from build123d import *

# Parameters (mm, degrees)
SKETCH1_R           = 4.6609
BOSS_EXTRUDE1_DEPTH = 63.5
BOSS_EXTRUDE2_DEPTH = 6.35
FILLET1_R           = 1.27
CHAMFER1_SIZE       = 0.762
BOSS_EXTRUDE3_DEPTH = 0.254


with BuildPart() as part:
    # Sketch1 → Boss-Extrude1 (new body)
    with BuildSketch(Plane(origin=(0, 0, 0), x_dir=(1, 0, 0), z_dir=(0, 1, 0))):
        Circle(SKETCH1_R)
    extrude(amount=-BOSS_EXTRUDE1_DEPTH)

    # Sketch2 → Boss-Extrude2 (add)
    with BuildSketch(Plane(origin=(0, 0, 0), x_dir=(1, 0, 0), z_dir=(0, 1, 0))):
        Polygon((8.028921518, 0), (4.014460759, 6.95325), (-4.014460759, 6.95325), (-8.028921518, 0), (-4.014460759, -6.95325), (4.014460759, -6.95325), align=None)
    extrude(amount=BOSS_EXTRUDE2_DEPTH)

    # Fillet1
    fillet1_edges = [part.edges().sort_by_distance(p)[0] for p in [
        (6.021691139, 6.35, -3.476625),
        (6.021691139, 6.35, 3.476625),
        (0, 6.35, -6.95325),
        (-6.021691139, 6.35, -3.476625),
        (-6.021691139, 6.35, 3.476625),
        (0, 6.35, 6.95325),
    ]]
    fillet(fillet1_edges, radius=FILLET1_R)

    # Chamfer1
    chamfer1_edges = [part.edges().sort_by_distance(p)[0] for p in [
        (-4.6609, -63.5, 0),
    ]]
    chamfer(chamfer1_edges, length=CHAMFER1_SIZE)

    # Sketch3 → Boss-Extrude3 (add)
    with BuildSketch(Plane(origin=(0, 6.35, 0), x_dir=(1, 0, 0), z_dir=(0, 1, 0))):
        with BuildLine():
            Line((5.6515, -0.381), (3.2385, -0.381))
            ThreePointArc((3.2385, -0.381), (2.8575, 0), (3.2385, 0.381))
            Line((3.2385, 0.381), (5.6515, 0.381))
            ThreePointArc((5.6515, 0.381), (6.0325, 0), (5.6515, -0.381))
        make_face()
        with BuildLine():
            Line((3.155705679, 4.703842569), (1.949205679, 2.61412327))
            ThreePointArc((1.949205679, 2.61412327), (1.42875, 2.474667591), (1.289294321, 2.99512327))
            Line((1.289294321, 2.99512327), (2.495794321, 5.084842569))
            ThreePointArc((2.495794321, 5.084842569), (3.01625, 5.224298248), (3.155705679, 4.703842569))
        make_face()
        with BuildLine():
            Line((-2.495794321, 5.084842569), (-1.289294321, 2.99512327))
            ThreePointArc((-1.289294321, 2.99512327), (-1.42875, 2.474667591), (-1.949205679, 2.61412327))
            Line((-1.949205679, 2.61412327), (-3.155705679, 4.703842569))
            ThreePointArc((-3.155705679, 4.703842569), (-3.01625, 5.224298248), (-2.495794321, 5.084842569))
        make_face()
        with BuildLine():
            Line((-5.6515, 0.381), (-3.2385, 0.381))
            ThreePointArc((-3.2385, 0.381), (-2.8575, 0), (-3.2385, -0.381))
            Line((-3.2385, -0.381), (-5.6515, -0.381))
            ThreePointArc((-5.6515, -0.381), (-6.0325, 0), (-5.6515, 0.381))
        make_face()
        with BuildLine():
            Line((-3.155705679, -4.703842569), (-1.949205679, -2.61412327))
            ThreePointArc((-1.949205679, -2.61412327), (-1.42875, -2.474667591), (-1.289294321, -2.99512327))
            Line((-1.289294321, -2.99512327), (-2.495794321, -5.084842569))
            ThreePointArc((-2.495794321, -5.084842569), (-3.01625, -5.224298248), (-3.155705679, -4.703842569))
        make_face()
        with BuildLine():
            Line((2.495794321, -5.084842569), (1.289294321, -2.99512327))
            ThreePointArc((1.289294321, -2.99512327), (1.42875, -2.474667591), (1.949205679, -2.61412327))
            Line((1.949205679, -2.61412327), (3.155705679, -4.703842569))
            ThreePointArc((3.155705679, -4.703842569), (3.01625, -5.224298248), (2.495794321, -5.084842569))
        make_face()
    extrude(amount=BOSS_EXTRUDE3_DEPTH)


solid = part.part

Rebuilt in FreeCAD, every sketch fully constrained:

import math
import FreeCAD as App
import Part
import Sketcher
from FreeCAD import Vector
Q = App.Units.Quantity


def edges_at(feature, points):
    """Names of the edges that pass closest to the given points."""
    edges = feature.Shape.Edges
    near = lambda p: min(range(len(edges)), key=lambda i: edges[i].distToShape(Part.Vertex(*p))[0])
    return sorted({f"Edge{near(p) + 1}" for p in points})


def add_polygon(sketch, points):
    """Adds a closed chain of lines whose ends are joined by coincident constraints."""
    first, n = sketch.GeometryCount, len(points)
    for a, b in zip(points, points[1:] + points[:1]):
        sketch.addGeometry(Part.LineSegment(App.Vector(*a, 0), App.Vector(*b, 0)), False)
    for i in range(n):
        sketch.addConstraint(Sketcher.Constraint("Coincident", first + i, 2, first + (i + 1) % n, 1))

doc = App.newDocument("Part")
body = doc.addObject("PartDesign::Body", "Body")

sketch1 = body.newObject("Sketcher::SketchObject", "Sketch")
sketch1.AttachmentSupport = (doc.getObject("XZ_Plane"), [""])
sketch1.MapMode = "FlatFace"
sketch1.addGeometry(Part.Circle(Vector(0, 0, 0), Vector(0, 0, 1), 4.7), False)
sketch1.addConstraint([
    Sketcher.Constraint("Coincident", 0, 3, -1, 1),
    Sketcher.Constraint("Diameter", 0, Q("0.367 in")),
])
pad1 = body.newObject("PartDesign::Pad", "Pad")
pad1.Profile = sketch1
pad1.Length = Q("2.5 in")

sketch2 = body.newObject("Sketcher::SketchObject", "Sketch001")
sketch2.AttachmentSupport = (doc.getObject("XZ_Plane"), [""])
sketch2.MapMode = "FlatFace"
add_polygon(sketch2, [(8, 0), (4, -7), (-4, -7), (-8, 0), (-4, 7), (4, 7)])
sketch2.addConstraint([
    Sketcher.Constraint("Horizontal", 1),
    Sketcher.Constraint("Horizontal", 4),
    Sketcher.Constraint("Symmetric", 0, 2, 3, 2, -1, 1),
    Sketcher.Constraint("Symmetric", 2, 2, 5, 2, -1, 1),
    Sketcher.Constraint("PointOnObject", 2, 2, -1),
    Sketcher.Constraint("Parallel", 2, 5),
    Sketcher.Constraint("Vertical", 1, 2, 3, 2),
    Sketcher.Constraint("Angle", 0, Q("-120 deg")),
    Sketcher.Constraint("DistanceY", 1, 2, 3, 2, Q("0.5475 in")),
    Sketcher.Constraint("DistanceX", 1, 2, 1, 1, 8.028922),
])
pad2 = body.newObject("PartDesign::Pad", "Pad001")
pad2.Profile = sketch2
pad2.Length = Q("0.25 in")
pad2.Reversed = True
doc.recompute()

fillet = body.newObject("PartDesign::Fillet", "Fillet")
fillet.Base = (pad2, edges_at(pad2, [
    (6.022, 6.35, -3.477),
    (6.022, 6.35, 3.477),
    (0, 6.35, -6.953),
    (-6.022, 6.35, -3.477),
    (-6.022, 6.35, 3.477),
    (0, 6.35, 6.953),
]))
fillet.Radius = Q("0.05 in")
doc.recompute()

chamfer = body.newObject("PartDesign::Chamfer", "Chamfer")
chamfer.Base = (fillet, edges_at(fillet, [(-4.661, -63.5, 0)]))
chamfer.Size = Q("0.03 in")

sketch3 = body.newObject("Sketcher::SketchObject", "Sketch002")
sketch3.AttachmentSupport = (doc.getObject("XZ_Plane"), [""])
sketch3.MapMode = "FlatFace"
sketch3.AttachmentOffset = App.Placement(Vector(0, 0, -0.25 * 25.4), App.Rotation())
sketch3.addGeometry([
    Part.LineSegment(Vector(3.24, 0.38, 0), Vector(5.65, 0.38, 0)),
    Part.ArcOfCircle(Part.Circle(Vector(5.65, 0, 0), Vector(0, 0, 1), 0.38), math.radians(-90), math.radians(90)),
    Part.LineSegment(Vector(5.65, -0.38, 0), Vector(3.24, -0.38, 0)),
    Part.ArcOfCircle(Part.Circle(Vector(3.24, 0, 0), Vector(0, 0, 1), 0.38), math.radians(90), math.radians(270)),
    Part.LineSegment(Vector(1.95, -2.61, 0), Vector(3.16, -4.7, 0)),
    Part.ArcOfCircle(Part.Circle(Vector(2.83, -4.89, 0), Vector(0, 0, 1), 0.38), math.radians(-150), math.radians(30)),
    Part.LineSegment(Vector(2.5, -5.08, 0), Vector(1.29, -3, 0)),
    Part.ArcOfCircle(Part.Circle(Vector(1.62, -2.8, 0), Vector(0, 0, 1), 0.38), math.radians(30), math.radians(210)),
    Part.LineSegment(Vector(-1.29, -3, 0), Vector(-2.5, -5.08, 0)),
    Part.ArcOfCircle(Part.Circle(Vector(-2.83, -4.89, 0), Vector(0, 0, 1), 0.38), math.radians(150), math.radians(330)),
    Part.LineSegment(Vector(-3.16, -4.7, 0), Vector(-1.95, -2.61, 0)),
    Part.ArcOfCircle(Part.Circle(Vector(-1.62, -2.8, 0), Vector(0, 0, 1), 0.38), math.radians(-30), math.radians(150)),
    Part.LineSegment(Vector(-3.24, -0.38, 0), Vector(-5.65, -0.38, 0)),
    Part.ArcOfCircle(Part.Circle(Vector(-5.65, 0, 0), Vector(0, 0, 1), 0.38), math.radians(90), math.radians(270)),
    Part.LineSegment(Vector(-5.65, 0.38, 0), Vector(-3.24, 0.38, 0)),
    Part.ArcOfCircle(Part.Circle(Vector(-3.24, 0, 0), Vector(0, 0, 1), 0.38), math.radians(-90), math.radians(90)),
    Part.LineSegment(Vector(-1.95, 2.61, 0), Vector(-3.16, 4.7, 0)),
    Part.ArcOfCircle(Part.Circle(Vector(-2.83, 4.89, 0), Vector(0, 0, 1), 0.38), math.radians(30), math.radians(210)),
    Part.LineSegment(Vector(-2.5, 5.08, 0), Vector(-1.29, 3, 0)),
    Part.ArcOfCircle(Part.Circle(Vector(-1.62, 2.8, 0), Vector(0, 0, 1), 0.38), math.radians(-150), math.radians(30)),
    Part.LineSegment(Vector(1.29, 3, 0), Vector(2.5, 5.08, 0)),
    Part.ArcOfCircle(Part.Circle(Vector(2.83, 4.89, 0), Vector(0, 0, 1), 0.38), math.radians(-30), math.radians(150)),
    Part.LineSegment(Vector(3.16, 4.7, 0), Vector(1.95, 2.61, 0)),
    Part.ArcOfCircle(Part.Circle(Vector(1.62, 2.8, 0), Vector(0, 0, 1), 0.38), math.radians(150), math.radians(330)),
], False)
sketch3.addConstraint([
    Sketcher.Constraint("Tangent", 0, 2, 1, 2),
    Sketcher.Constraint("Tangent", 1, 1, 2, 1),
    Sketcher.Constraint("Tangent", 2, 2, 3, 2),
    Sketcher.Constraint("Tangent", 3, 1, 0, 1),
    Sketcher.Constraint("Tangent", 4, 2, 5, 2),
    Sketcher.Constraint("Tangent", 5, 1, 6, 1),
    Sketcher.Constraint("Tangent", 6, 2, 7, 2),
    Sketcher.Constraint("Tangent", 7, 1, 4, 1),
    Sketcher.Constraint("Tangent", 8, 2, 9, 2),
    Sketcher.Constraint("Tangent", 9, 1, 10, 1),
    Sketcher.Constraint("Tangent", 10, 2, 11, 2),
    Sketcher.Constraint("Tangent", 11, 1, 8, 1),
    Sketcher.Constraint("Tangent", 12, 2, 13, 2),
    Sketcher.Constraint("Tangent", 13, 1, 14, 1),
    Sketcher.Constraint("Tangent", 14, 2, 15, 2),
    Sketcher.Constraint("Tangent", 15, 1, 12, 1),
    Sketcher.Constraint("Tangent", 16, 2, 17, 2),
    Sketcher.Constraint("Tangent", 17, 1, 18, 1),
    Sketcher.Constraint("Tangent", 18, 2, 19, 2),
    Sketcher.Constraint("Tangent", 19, 1, 16, 1),
    Sketcher.Constraint("Tangent", 20, 2, 21, 2),
    Sketcher.Constraint("Tangent", 21, 1, 22, 1),
    Sketcher.Constraint("Tangent", 22, 2, 23, 2),
    Sketcher.Constraint("Tangent", 23, 1, 20, 1),
    Sketcher.Constraint("Horizontal", 0),
    Sketcher.Constraint("Horizontal", 2),
    Sketcher.Constraint("Horizontal", 12),
    Sketcher.Constraint("Horizontal", 14),
    Sketcher.Constraint("Equal", 3, 5),
    Sketcher.Constraint("Equal", 5, 7),
    Sketcher.Constraint("Equal", 7, 9),
    Sketcher.Constraint("Equal", 9, 11),
    Sketcher.Constraint("Equal", 11, 13),
    Sketcher.Constraint("Equal", 15, 17),
    Sketcher.Constraint("Equal", 17, 19),
    Sketcher.Constraint("Equal", 19, 21),
    Sketcher.Constraint("Equal", 21, 23),
    Sketcher.Constraint("Symmetric", 1, 3, 13, 3, -1, 1),
    Sketcher.Constraint("Symmetric", 5, 3, 17, 3, -1, 1),
    Sketcher.Constraint("Symmetric", 7, 3, 19, 3, -1, 1),
    Sketcher.Constraint("Symmetric", 9, 3, 21, 3, -1, 1),
    Sketcher.Constraint("Symmetric", 11, 3, 23, 3, -1, 1),
    Sketcher.Constraint("Symmetric", 5, 3, 9, 3, -2),
    Sketcher.Constraint("Symmetric", 7, 3, 11, 3, -2),
    Sketcher.Constraint("Symmetric", 3, 3, 15, 3, -2),
    Sketcher.Constraint("Angle", 4, Q("-60 deg")),
    Sketcher.Constraint("Radius", 1, Q("0.015 in")),
    Sketcher.Constraint("DistanceX", 0, 1, 0, 2, Q("0.095 in")),
    Sketcher.Constraint("DistanceX", 13, 3, 3, 3, Q("0.35 in")),
    Sketcher.Constraint("Distance", 4, Q("0.095 in")),
    Sketcher.Constraint("DistanceX", 9, 3, 7, 3, Q("0.175 in")),
    Sketcher.Constraint("DistanceY", 5, 3, -1, 1, 4.894343),
])
pad3 = body.newObject("PartDesign::Pad", "Pad002")
pad3.Profile = sketch3
pad3.Length = Q("0.01 in")
pad3.Reversed = True

doc.recompute()
